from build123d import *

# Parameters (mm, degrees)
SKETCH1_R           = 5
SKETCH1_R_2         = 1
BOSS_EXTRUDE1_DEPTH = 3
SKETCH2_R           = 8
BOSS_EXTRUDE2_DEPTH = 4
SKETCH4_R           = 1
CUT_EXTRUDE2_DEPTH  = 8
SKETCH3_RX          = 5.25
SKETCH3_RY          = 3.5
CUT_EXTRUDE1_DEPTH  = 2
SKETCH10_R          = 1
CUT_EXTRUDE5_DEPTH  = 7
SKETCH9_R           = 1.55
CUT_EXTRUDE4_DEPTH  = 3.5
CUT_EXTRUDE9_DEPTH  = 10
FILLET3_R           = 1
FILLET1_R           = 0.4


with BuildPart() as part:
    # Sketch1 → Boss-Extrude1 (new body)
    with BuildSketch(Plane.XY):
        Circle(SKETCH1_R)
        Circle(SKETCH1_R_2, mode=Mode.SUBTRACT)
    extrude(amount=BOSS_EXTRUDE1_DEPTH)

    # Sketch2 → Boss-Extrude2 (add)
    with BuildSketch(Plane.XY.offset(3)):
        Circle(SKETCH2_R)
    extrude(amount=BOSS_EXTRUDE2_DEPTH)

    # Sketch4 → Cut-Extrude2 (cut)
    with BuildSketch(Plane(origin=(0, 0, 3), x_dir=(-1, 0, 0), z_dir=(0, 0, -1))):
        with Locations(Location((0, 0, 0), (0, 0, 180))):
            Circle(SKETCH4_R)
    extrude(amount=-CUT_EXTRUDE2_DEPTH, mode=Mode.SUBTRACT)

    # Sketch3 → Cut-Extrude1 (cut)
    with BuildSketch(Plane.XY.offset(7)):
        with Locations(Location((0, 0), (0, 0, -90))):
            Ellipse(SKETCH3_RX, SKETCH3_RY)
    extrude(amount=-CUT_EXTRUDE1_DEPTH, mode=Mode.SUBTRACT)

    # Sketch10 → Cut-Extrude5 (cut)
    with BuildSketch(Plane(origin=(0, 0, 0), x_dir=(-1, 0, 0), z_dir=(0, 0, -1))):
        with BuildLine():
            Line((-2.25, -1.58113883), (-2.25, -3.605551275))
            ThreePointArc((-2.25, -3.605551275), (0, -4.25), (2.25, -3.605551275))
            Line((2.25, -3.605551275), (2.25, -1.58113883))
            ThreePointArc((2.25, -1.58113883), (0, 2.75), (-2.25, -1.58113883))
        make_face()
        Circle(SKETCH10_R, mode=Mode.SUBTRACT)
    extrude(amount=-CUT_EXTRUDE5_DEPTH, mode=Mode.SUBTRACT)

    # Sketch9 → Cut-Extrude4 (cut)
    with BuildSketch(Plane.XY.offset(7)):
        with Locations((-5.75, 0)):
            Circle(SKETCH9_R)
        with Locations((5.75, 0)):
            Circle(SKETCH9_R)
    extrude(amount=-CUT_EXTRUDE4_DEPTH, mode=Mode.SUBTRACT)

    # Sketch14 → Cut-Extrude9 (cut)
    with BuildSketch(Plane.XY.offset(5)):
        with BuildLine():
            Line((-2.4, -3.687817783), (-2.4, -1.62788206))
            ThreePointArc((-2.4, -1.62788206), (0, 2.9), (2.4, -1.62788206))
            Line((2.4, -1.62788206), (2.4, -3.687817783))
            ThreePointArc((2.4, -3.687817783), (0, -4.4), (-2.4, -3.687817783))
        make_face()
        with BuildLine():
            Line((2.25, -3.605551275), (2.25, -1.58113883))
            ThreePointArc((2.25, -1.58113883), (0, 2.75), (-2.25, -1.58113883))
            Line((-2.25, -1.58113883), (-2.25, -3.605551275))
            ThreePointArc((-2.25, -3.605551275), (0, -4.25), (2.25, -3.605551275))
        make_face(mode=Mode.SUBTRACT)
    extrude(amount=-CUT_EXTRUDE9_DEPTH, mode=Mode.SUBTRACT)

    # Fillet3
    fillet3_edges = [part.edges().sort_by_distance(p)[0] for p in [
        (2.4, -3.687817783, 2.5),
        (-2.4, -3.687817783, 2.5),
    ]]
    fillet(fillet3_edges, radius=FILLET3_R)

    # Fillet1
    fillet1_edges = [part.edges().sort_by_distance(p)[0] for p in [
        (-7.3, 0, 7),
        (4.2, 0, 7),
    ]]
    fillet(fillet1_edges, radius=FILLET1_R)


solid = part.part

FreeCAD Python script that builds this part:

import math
import FreeCAD as App
import Part
import Sketcher

V = App.Vector


def edges_at(feature, points):
    """Names of the edges that pass closest to the given points."""
    edges = feature.Shape.Edges
    near = lambda p: min(range(len(edges)), key=lambda i: edges[i].distToShape(Part.Vertex(*p))[0])
    return sorted({f"Edge{near(p) + 1}" for p in points})

doc = App.newDocument("Part")
body = doc.addObject("PartDesign::Body", "Body")

# Sketch on XY plane
sketch1 = body.newObject("Sketcher::SketchObject", "Sketch")
sketch1.AttachmentSupport = (doc.getObject("XY_Plane"), [""])
sketch1.MapMode = "FlatFace"
sketch1.addGeometry([
    Part.Circle(V(0, 0, 0), V(0, 0, 1), 5),
    Part.Circle(V(0, 0, 0), V(0, 0, 1), 1),
], False)
sketch1.addConstraint([
    Sketcher.Constraint("Coincident", 0, 3, -1, 1),
    Sketcher.Constraint("Coincident", 1, 3, -1, 1),
    Sketcher.Constraint("Diameter", 0, 10.0),
    Sketcher.Constraint("Diameter", 1, 2.0),
])
pad1 = body.newObject("PartDesign::Pad", "Pad")
pad1.Profile = sketch1
pad1.Length = 3

# Sketch on XY plane
sketch2 = body.newObject("Sketcher::SketchObject", "Sketch001")
sketch2.AttachmentSupport = (doc.getObject("XY_Plane"), [""])
sketch2.MapMode = "FlatFace"
sketch2.AttachmentOffset = App.Placement(V(0, 0, 3), App.Rotation())
sketch2.addGeometry(Part.Circle(V(0, 0, 0), V(0, 0, 1), 8), False)
sketch2.addConstraint([
    Sketcher.Constraint("Coincident", 0, 3, -1, 1),
    Sketcher.Constraint("Diameter", 0, 16.0),
])
pad2 = body.newObject("PartDesign::Pad", "Pad001")
pad2.Profile = sketch2
pad2.Length = 4

# Sketch on XY plane
sketch3 = body.newObject("Sketcher::SketchObject", "Sketch002")
sketch3.AttachmentSupport = (doc.getObject("XY_Plane"), [""])
sketch3.MapMode = "FlatFace"
sketch3.AttachmentOffset = App.Placement(V(0, 0, 3), App.Rotation())
sketch3.addGeometry(Part.Circle(V(0, 0, 0), V(0, 0, 1), 1), False)
sketch3.addConstraint([
    Sketcher.Constraint("Coincident", 0, 3, -1, 1),
    Sketcher.Constraint("Diameter", 0, 2.0),
])
pocket1 = body.newObject("PartDesign::Pocket", "Pocket")
pocket1.Profile = sketch3
pocket1.Length = 8
pocket1.Reversed = True

# Sketch on XY plane
sketch4 = body.newObject("Sketcher::SketchObject", "Sketch003")
sketch4.AttachmentSupport = (doc.getObject("XY_Plane"), [""])
sketch4.MapMode = "FlatFace"
sketch4.AttachmentOffset = App.Placement(V(0, 0, 7), App.Rotation())
sketch4.addGeometry(Part.Ellipse(V(0, -5.25, 0), V(3.5, 0, 0), V(0, 0, 0)), False)
sketch4.addConstraint(Sketcher.Constraint("Block", 0))
pocket2 = body.newObject("PartDesign::Pocket", "Pocket001")
pocket2.Profile = sketch4
pocket2.Length = 2

# Sketch on XY plane
sketch5 = body.newObject("Sketcher::SketchObject", "Sketch004")
sketch5.AttachmentSupport = (doc.getObject("XY_Plane"), [""])
sketch5.MapMode = "FlatFace"
sketch5.addGeometry([
    Part.LineSegment(V(2.2, -1.6, 0), V(2.2, -3.6, 0)),  # 0
    Part.ArcOfCircle(Part.Circle(V(0, 0, 0), V(0, 0, 1), 4.2), math.radians(-122), math.radians(-58)),  # 1
    Part.LineSegment(V(-2.2, -3.6, 0), V(-2.2, -1.6, 0)),  # 2
    Part.ArcOfCircle(Part.Circle(V(0, 0, 0), V(0, 0, 1), 2.8), math.radians(-35), math.radians(215)),  # 3
    Part.Circle(V(0, 0, 0), V(0, 0, 1), 1),  # 4
], False)
sketch5.addConstraint([
    Sketcher.Constraint("Coincident", 0, 2, 1, 2),
    Sketcher.Constraint("Coincident", 1, 1, 2, 1),
    Sketcher.Constraint("Coincident", 2, 2, 3, 2),
    Sketcher.Constraint("Coincident", 3, 1, 0, 1),
    Sketcher.Constraint("Vertical", 0),
    Sketcher.Constraint("Vertical", 2),
    Sketcher.Constraint("Coincident", 1, 3, -1, 1),
    Sketcher.Constraint("Coincident", 3, 3, -1, 1),
    Sketcher.Constraint("Coincident", 4, 3, -1, 1),
    Sketcher.Constraint("Horizontal", 0, 2, 1, 1),
    Sketcher.Constraint("Diameter", 4, 2.0),
    Sketcher.Constraint("Radius", 1, 4.25),
    Sketcher.Constraint("Radius", 3, 2.75),
    Sketcher.Constraint("DistanceX", 1, 1, 0, 2, 4.5),
])
pocket3 = body.newObject("PartDesign::Pocket", "Pocket002")
pocket3.Profile = sketch5
pocket3.Length = 7
pocket3.Reversed = True

# Sketch on XY plane
sketch6 = body.newObject("Sketcher::SketchObject", "Sketch005")
sketch6.AttachmentSupport = (doc.getObject("XY_Plane"), [""])
sketch6.MapMode = "FlatFace"
sketch6.AttachmentOffset = App.Placement(V(0, 0, 7), App.Rotation())
sketch6.addGeometry([
    Part.Circle(V(-5.8, 0, 0), V(0, 0, 1), 1.6),
    Part.Circle(V(5.8, 0, 0), V(0, 0, 1), 1.6),
], False)
sketch6.addConstraint([
    Sketcher.Constraint("Equal", 0, 1),
    Sketcher.Constraint("Symmetric", 0, 3, 1, 3, -1, 1),
    Sketcher.Constraint("PointOnObject", 0, 3, -1),
    Sketcher.Constraint("Diameter", 0, 3.1),
    Sketcher.Constraint("DistanceX", 0, 3, 1, 3, 11.5),
])
pocket4 = body.newObject("PartDesign::Pocket", "Pocket003")
pocket4.Profile = sketch6
pocket4.Length = 3.5

# Sketch on XY plane
sketch7 = body.newObject("Sketcher::SketchObject", "Sketch006")
sketch7.AttachmentSupport = (doc.getObject("XY_Plane"), [""])
sketch7.MapMode = "FlatFace"
sketch7.AttachmentOffset = App.Placement(V(0, 0, 5), App.Rotation())
sketch7.addGeometry([
    Part.LineSegment(V(-2.4, -1.6, 0), V(-2.4, -3.7, 0)),  # 0
    Part.ArcOfCircle(Part.Circle(V(0, 0, 0), V(0, 0, 1), 4.4), math.radians(-123), math.radians(-57)),  # 1
    Part.LineSegment(V(2.4, -3.7, 0), V(2.4, -1.6, 0)),  # 2
    Part.ArcOfCircle(Part.Circle(V(0, 0, 0), V(0, 0, 1), 2.9), math.radians(-34), math.radians(214)),  # 3
    Part.ArcOfCircle(Part.Circle(V(0, 0, 0), V(0, 0, 1), 4.2), math.radians(-122), math.radians(-58)),  # 4
    Part.LineSegment(V(-2.2, -3.6, 0), V(-2.2, -1.6, 0)),  # 5
    Part.ArcOfCircle(Part.Circle(V(0, 0, 0), V(0, 0, 1), 2.8), math.radians(-35), math.radians(215)),  # 6
    Part.LineSegment(V(2.2, -1.6, 0), V(2.2, -3.6, 0)),  # 7
], False)
sketch7.addConstraint([
    Sketcher.Constraint("Coincident", 0, 2, 1, 1),
    Sketcher.Constraint("Coincident", 1, 2, 2, 1),
    Sketcher.Constraint("Coincident", 2, 2, 3, 1),
    Sketcher.Constraint("Coincident", 3, 2, 0, 1),
    Sketcher.Constraint("Coincident", 4, 1, 5, 1),
    Sketcher.Constraint("Coincident", 5, 2, 6, 2),
    Sketcher.Constraint("Coincident", 6, 1, 7, 1),
    Sketcher.Constraint("Coincident", 7, 2, 4, 2),
    Sketcher.Constraint("Vertical", 0),
    Sketcher.Constraint("Vertical", 2),
    Sketcher.Constraint("Vertical", 5),
    Sketcher.Constraint("Vertical", 7),
    Sketcher.Constraint("Coincident", 1, 3, -1, 1),
    Sketcher.Constraint("Coincident", 3, 3, -1, 1),
    Sketcher.Constraint("Coincident", 4, 3, -1, 1),
    Sketcher.Constraint("Coincident", 6, 3, -1, 1),
    Sketcher.Constraint("Horizontal", 0, 2, 1, 2),
    Sketcher.Constraint("Horizontal", 5, 2, 6, 1),
    Sketcher.Constraint("Radius", 1, 4.4),
    Sketcher.Constraint("Radius", 3, 2.9),
    Sketcher.Constraint("Radius", 4, 4.25),
    Sketcher.Constraint("Radius", 6, 2.75),
    Sketcher.Constraint("DistanceX", 0, 2, -1, 1, 2.4),
    Sketcher.Constraint("DistanceX", 4, 1, -1, 1, 2.25),
])
pocket5 = body.newObject("PartDesign::Pocket", "Pocket004")
pocket5.Profile = sketch7
pocket5.Length = 10
doc.recompute()

fillet = body.newObject("PartDesign::Fillet", "Fillet")
fillet.Base = (pocket5, edges_at(pocket5, [(2.4, -3.688, 2.5), (-2.4, -3.688, 2.5)]))
fillet.Radius = 1
doc.recompute()

fillet2 = body.newObject("PartDesign::Fillet", "Fillet001")
fillet2.Base = (fillet, edges_at(fillet, [(-7.3, 0, 7), (4.2, 0, 7)]))
fillet2.Radius = 0.4

doc.recompute()
